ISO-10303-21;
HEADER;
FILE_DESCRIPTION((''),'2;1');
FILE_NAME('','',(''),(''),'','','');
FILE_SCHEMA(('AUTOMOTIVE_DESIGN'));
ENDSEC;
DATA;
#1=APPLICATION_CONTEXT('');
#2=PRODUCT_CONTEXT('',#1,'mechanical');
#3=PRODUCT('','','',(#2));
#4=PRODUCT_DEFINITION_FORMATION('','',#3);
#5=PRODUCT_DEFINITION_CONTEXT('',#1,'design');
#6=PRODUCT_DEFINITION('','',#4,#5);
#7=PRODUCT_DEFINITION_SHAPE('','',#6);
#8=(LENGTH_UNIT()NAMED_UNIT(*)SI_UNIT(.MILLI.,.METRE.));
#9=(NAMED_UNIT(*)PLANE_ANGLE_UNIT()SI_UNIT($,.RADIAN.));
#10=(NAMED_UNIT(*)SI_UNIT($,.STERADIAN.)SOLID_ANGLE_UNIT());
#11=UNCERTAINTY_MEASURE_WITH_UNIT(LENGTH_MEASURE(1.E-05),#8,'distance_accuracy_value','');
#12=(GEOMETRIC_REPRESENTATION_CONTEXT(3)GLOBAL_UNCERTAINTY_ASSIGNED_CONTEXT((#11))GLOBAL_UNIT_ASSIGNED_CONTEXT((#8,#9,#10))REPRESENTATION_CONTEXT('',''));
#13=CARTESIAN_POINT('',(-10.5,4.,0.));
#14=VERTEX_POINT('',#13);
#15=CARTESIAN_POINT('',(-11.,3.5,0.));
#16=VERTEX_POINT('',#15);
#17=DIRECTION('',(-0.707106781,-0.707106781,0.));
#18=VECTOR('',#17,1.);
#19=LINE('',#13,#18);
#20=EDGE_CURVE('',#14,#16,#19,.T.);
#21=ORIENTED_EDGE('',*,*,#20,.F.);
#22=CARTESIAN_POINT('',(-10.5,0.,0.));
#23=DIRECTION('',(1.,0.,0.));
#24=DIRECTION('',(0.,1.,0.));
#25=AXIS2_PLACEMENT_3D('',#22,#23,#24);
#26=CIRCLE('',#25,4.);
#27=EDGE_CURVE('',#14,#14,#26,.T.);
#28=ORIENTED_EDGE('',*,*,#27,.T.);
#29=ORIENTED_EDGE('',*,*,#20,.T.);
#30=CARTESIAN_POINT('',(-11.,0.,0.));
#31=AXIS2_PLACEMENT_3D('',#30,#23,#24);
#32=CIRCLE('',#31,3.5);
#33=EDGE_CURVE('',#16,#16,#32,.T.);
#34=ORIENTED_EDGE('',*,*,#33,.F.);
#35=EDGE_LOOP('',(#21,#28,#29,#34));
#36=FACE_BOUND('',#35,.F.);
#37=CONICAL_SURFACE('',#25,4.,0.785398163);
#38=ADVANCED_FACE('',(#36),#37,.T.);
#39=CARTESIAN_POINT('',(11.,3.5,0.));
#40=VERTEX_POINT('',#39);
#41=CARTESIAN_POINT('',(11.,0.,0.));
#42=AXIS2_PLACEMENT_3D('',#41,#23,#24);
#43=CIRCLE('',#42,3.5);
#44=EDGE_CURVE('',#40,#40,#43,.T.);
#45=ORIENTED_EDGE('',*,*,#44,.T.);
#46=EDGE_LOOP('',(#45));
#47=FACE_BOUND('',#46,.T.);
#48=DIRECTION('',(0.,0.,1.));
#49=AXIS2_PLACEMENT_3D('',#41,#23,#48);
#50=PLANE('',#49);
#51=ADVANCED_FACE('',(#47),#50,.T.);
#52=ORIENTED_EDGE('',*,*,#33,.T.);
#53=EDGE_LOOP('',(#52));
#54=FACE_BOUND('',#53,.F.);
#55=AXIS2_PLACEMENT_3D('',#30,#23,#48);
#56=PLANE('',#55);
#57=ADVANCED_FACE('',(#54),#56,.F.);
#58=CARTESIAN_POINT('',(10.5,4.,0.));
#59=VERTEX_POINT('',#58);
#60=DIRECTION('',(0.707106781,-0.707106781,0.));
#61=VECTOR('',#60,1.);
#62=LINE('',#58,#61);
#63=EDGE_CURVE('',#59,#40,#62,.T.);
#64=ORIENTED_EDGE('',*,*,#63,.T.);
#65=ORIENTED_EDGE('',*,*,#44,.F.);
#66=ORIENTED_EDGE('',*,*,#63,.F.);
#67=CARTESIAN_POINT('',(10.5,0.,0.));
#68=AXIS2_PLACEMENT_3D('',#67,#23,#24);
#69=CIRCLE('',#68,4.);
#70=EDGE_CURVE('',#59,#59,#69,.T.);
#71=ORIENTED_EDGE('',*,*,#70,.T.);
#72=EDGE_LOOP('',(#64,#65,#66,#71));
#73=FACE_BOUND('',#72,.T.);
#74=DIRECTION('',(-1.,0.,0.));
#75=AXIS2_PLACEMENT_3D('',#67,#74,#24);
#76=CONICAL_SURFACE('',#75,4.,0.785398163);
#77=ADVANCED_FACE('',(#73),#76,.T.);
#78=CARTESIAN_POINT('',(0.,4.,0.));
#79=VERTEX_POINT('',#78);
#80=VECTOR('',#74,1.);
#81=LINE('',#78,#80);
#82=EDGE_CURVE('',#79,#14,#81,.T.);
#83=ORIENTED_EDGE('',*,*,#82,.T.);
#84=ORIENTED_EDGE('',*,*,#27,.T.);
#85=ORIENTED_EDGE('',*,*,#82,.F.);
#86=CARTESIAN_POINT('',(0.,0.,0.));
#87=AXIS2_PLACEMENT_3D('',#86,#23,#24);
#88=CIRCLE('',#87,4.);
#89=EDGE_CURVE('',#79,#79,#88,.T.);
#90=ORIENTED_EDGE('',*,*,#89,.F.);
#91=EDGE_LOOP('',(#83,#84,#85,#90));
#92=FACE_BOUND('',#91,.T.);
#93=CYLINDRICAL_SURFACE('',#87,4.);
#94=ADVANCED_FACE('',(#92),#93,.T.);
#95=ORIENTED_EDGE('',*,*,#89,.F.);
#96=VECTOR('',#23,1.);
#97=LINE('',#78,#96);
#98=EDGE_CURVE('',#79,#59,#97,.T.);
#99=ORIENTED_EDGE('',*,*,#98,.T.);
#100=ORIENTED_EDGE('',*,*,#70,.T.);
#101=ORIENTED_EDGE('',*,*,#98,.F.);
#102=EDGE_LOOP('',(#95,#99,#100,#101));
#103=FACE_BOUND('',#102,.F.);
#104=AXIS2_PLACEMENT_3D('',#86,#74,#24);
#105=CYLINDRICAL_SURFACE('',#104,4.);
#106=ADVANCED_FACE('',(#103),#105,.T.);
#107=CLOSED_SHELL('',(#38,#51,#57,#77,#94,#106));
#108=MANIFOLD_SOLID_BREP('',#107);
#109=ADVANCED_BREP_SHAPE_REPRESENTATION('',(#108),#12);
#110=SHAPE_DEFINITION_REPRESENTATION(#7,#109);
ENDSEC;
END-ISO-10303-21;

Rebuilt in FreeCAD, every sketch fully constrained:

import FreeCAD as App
import Part
import Sketcher


def edges_at(feature, points):
    """Names of the edges that pass closest to the given points."""
    edges = feature.Shape.Edges
    near = lambda p: min(range(len(edges)), key=lambda i: edges[i].distToShape(Part.Vertex(*p))[0])
    return sorted({f"Edge{near(p) + 1}" for p in points})

doc = App.newDocument("Part")
body = doc.addObject("PartDesign::Body", "Body")

sketch1 = body.newObject("Sketcher::SketchObject", "Sketch")
sketch1.AttachmentSupport = (doc.getObject("YZ_Plane"), [""])
sketch1.MapMode = "FlatFace"
sketch1.addGeometry(Part.Circle(App.Vector(0, 0, 0), App.Vector(0, 0, 1), 4), False)
sketch1.addConstraint(Sketcher.Constraint("Coincident", 0, 3, -1, 1))
sketch1.addConstraint(Sketcher.Constraint("Diameter", 0, 8.0))
pad1 = body.newObject("PartDesign::Pad", "Pad")
pad1.Profile = sketch1
pad1.Length = 22
pad1.Midplane = True
doc.recompute()

chamfer = body.newObject("PartDesign::Chamfer", "Chamfer")
chamfer.Base = (pad1, edges_at(pad1, [(11, -4, 0), (-11, -4, 0)]))
chamfer.Size = 0.5

doc.recompute()
